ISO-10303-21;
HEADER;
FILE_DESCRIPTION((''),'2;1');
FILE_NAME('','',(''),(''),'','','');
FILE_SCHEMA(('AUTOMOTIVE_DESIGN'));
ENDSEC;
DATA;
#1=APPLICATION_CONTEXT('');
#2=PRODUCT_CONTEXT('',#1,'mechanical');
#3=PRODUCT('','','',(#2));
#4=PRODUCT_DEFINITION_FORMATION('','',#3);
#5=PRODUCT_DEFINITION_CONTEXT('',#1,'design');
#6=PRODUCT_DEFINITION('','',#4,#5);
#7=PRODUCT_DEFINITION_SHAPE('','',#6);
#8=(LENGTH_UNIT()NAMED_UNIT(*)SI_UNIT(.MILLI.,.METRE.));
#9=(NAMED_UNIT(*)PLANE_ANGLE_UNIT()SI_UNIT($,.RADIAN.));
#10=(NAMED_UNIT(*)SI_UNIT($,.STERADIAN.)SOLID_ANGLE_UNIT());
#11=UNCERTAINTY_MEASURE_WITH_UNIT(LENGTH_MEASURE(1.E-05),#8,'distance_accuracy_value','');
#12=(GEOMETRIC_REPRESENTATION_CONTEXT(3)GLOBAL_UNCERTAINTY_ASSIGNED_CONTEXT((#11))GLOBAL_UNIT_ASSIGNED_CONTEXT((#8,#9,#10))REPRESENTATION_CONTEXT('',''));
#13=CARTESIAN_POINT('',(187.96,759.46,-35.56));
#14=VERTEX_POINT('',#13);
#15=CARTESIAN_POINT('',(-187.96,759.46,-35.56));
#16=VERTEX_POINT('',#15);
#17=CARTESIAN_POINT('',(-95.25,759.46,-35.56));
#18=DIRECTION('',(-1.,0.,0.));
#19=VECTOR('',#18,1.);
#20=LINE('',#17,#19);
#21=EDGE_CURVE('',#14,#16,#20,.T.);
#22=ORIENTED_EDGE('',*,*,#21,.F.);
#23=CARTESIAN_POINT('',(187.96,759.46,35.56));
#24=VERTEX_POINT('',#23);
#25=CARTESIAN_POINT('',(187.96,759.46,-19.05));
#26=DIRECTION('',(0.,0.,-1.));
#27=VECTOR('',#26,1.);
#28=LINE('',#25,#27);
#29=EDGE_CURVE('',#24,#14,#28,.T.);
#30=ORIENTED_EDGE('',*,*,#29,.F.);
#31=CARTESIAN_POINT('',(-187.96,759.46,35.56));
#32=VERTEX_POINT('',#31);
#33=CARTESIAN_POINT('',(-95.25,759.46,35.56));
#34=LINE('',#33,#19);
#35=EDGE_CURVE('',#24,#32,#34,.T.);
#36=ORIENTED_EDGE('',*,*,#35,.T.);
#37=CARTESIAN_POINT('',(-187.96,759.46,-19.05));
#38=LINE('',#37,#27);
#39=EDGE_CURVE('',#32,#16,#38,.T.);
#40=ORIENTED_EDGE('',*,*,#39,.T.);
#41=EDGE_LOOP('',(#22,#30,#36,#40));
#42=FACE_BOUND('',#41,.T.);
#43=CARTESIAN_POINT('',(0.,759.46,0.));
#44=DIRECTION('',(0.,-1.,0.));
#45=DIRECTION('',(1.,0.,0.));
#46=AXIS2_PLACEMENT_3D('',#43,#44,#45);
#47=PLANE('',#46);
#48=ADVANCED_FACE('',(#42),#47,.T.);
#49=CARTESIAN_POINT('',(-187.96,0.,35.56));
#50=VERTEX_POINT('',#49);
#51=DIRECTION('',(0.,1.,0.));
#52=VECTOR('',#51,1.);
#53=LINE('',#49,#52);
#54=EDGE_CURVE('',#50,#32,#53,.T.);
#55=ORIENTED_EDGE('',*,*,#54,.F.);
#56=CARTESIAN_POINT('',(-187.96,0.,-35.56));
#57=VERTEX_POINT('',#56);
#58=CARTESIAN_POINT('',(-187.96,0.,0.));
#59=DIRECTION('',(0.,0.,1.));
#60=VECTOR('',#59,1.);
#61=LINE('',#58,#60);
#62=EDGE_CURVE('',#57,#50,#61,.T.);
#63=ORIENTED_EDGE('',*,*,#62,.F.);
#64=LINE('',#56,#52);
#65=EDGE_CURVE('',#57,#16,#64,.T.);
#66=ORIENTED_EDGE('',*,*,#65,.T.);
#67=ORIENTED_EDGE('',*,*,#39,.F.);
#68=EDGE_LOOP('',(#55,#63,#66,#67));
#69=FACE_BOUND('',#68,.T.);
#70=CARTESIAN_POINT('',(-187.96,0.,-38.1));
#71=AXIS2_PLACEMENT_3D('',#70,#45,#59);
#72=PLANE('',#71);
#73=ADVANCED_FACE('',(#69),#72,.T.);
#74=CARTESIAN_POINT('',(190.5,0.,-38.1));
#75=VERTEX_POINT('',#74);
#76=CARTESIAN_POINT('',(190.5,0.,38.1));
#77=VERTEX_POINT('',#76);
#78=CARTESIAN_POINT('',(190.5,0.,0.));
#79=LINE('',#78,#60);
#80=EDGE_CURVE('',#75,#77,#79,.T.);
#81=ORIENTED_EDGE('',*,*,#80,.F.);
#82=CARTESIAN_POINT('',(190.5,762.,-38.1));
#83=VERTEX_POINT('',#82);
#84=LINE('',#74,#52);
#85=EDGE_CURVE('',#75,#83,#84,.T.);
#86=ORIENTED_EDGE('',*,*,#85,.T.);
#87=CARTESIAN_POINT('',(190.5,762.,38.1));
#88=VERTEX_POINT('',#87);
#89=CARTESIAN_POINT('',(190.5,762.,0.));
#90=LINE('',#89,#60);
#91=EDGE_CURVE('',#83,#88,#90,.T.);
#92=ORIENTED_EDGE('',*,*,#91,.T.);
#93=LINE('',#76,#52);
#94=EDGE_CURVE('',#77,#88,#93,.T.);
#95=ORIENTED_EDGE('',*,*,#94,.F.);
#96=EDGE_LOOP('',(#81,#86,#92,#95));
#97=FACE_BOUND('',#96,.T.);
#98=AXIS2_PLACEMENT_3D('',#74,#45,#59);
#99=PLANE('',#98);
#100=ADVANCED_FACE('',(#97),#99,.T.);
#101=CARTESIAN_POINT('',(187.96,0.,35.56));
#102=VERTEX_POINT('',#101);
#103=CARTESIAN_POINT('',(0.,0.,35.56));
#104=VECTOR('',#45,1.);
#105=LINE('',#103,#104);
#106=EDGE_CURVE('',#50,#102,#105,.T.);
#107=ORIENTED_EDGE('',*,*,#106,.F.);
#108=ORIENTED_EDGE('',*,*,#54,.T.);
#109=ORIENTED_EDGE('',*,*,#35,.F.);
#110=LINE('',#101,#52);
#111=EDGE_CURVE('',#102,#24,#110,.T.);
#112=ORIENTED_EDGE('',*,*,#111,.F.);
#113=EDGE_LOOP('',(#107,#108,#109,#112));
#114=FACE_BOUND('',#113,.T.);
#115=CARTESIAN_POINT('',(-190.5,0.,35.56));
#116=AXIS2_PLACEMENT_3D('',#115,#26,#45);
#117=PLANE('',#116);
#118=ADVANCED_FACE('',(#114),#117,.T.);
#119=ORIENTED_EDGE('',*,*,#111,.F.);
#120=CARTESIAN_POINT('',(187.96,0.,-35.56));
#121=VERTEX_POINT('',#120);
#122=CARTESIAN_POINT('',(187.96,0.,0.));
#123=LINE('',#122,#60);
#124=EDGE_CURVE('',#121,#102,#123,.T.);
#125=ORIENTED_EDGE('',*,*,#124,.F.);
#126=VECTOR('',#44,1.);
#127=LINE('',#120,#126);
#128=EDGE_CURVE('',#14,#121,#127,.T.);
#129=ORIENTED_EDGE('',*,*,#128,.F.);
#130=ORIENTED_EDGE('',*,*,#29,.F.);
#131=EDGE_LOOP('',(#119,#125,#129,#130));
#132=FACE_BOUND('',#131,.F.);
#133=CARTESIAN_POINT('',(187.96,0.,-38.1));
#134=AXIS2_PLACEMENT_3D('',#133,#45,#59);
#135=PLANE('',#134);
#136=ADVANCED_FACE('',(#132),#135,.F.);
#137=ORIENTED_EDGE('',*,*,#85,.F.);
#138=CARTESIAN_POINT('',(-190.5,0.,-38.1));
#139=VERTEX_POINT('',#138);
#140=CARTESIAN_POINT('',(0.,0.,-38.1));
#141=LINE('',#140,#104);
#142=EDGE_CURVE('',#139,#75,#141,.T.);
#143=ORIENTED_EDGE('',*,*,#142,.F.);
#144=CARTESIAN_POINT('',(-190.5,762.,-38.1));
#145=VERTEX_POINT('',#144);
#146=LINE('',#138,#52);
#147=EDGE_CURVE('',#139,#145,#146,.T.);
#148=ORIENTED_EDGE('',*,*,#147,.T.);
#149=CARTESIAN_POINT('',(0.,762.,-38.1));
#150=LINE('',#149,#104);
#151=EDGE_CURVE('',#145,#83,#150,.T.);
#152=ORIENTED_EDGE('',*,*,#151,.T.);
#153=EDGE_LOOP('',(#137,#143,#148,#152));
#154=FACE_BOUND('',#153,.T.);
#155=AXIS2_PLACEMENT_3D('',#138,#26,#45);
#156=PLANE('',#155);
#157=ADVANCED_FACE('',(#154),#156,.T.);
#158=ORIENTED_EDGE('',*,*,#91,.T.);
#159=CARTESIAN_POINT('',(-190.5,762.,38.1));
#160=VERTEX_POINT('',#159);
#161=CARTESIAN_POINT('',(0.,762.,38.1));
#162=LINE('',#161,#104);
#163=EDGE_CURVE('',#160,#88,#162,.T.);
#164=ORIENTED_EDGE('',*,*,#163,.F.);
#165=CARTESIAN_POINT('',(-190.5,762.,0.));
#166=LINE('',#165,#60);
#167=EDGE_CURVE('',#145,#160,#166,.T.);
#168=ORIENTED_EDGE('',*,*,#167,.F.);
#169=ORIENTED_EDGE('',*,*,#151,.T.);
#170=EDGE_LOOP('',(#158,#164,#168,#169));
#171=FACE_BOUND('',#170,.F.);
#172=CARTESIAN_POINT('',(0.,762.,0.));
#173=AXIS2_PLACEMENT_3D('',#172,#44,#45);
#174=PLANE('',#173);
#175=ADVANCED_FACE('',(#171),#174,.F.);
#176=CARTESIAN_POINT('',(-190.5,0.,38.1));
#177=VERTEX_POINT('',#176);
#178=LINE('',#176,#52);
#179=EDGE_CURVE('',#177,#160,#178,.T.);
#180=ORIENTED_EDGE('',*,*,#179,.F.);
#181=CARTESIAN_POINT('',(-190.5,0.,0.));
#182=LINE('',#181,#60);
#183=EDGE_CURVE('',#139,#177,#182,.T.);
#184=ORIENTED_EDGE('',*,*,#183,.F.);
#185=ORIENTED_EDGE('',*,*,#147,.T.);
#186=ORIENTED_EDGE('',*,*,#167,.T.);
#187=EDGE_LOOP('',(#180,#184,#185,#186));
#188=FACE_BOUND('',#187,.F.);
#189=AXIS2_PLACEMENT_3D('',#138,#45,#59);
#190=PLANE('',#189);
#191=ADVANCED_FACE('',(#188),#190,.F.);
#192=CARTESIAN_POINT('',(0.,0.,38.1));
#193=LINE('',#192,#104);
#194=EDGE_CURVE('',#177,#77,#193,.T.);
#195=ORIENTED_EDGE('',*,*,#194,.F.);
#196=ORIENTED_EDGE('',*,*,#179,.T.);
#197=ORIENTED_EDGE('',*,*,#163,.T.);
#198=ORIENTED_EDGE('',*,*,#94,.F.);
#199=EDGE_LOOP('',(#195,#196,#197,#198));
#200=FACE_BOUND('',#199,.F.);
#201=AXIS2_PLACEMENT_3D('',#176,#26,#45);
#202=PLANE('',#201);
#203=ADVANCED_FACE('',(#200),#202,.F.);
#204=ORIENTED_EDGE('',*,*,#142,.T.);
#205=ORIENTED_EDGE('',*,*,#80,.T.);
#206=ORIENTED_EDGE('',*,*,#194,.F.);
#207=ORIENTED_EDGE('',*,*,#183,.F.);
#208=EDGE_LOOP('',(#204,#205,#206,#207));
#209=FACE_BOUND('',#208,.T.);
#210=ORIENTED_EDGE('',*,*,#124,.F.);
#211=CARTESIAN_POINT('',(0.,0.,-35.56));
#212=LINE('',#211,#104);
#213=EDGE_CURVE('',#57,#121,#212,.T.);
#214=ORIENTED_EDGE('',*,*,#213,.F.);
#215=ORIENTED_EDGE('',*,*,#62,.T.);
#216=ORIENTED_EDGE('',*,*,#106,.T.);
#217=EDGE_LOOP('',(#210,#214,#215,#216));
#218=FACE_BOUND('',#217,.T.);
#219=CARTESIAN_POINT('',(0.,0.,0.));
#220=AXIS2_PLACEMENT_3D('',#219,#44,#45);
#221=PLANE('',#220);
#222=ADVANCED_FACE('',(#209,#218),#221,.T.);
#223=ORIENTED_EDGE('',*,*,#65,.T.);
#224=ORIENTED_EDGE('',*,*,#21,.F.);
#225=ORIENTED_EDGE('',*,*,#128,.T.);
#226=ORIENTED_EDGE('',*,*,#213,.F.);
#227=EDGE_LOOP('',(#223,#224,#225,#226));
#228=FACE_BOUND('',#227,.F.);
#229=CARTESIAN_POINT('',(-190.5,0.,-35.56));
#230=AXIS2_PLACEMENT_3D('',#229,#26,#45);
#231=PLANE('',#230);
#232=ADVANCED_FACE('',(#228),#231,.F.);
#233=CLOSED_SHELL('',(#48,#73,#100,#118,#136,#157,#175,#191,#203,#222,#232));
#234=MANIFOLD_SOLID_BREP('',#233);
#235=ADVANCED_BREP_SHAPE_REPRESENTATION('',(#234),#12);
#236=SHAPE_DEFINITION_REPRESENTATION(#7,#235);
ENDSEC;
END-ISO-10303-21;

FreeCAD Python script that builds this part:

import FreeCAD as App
import Part
import Sketcher

V = App.Vector
Q = App.Units.Quantity


def faces_at(feature, points):
    """Names of the faces that lie closest to the given points."""
    faces = feature.Shape.Faces
    near = lambda p: min(range(len(faces)), key=lambda i: faces[i].distToShape(Part.Vertex(*p))[0])
    return sorted({f"Face{near(p) + 1}" for p in points})


def add_polygon(sketch, points):
    """Adds a closed chain of lines whose ends are joined by coincident constraints."""
    first, n = sketch.GeometryCount, len(points)
    for a, b in zip(points, points[1:] + points[:1]):
        sketch.addGeometry(Part.LineSegment(App.Vector(*a, 0), App.Vector(*b, 0)), False)
    for i in range(n):
        sketch.addConstraint(Sketcher.Constraint("Coincident", first + i, 2, first + (i + 1) % n, 1))

doc = App.newDocument("Part")
params = doc.addObject("Spreadsheet::Sheet", "Params")
for row, (alias, value) in enumerate([
    ("sketch1_width", "15 in"),
    ("sketch1_height", "3 in"),
    ("pad1_length", "30 in"),
    ("thickness_wall", "0.1 in"),
], start=1):
    params.set(f"A{row}", alias)
    params.set(f"B{row}", "=" + value)
    params.setAlias(f"B{row}", alias)

body = doc.addObject("PartDesign::Body", "Body")

sketch1 = body.newObject("Sketcher::SketchObject", "Sketch")
sketch1.AttachmentSupport = (doc.getObject("XZ_Plane"), [""])
sketch1.MapMode = "FlatFace"
add_polygon(sketch1, [(-190.5, 38.1), (-190.5, -38.1), (190.5, -38.1), (190.5, 38.1)])
sketch1.addConstraint([
    Sketcher.Constraint("Vertical", 0),
    Sketcher.Constraint("Horizontal", 1),
    Sketcher.Constraint("Vertical", 2),
    Sketcher.Constraint("Horizontal", 3),
    Sketcher.Constraint("Symmetric", 0, 2, 2, 2, -1, 1),
    Sketcher.Constraint("DistanceX", 1, 1, 1, 2, Q("15 in")),
    Sketcher.Constraint("DistanceY", 0, 2, 0, 1, Q("3 in")),
])
sketch1.setExpression("Constraints[9]", "Params.sketch1_width")
sketch1.setExpression("Constraints[10]", "Params.sketch1_height")
pad1 = body.newObject("PartDesign::Pad", "Pad")
pad1.Profile = sketch1
pad1.setExpression("Length", "Params.pad1_length")
pad1.Reversed = True
doc.recompute()

thickness = body.newObject("PartDesign::Thickness", "Thickness")
thickness.Base = (pad1, faces_at(pad1, [(0, 0, 0)]))
thickness.setExpression("Value", "Params.thickness_wall")
thickness.Reversed = True
thickness.Join = "Arc"

doc.recompute()
